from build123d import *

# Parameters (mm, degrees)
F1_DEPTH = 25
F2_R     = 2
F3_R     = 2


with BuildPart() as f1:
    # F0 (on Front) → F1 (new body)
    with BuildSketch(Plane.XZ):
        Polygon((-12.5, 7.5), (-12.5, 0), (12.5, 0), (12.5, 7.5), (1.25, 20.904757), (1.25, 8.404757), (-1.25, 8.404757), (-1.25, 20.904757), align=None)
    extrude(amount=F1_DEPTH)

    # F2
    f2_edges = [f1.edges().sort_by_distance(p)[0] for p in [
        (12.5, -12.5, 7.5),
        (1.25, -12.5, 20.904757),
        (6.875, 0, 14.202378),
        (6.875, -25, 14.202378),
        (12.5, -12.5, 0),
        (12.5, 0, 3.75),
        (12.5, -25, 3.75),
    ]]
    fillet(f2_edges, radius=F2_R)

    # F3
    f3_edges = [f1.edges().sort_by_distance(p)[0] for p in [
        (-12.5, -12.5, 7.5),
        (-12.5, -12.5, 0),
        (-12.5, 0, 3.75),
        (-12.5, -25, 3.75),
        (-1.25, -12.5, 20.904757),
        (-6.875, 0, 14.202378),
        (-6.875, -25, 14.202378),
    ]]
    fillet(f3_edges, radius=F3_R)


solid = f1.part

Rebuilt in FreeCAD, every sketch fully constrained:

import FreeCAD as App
import Part
import Sketcher
Q = App.Units.Quantity


def edges_at(feature, points):
    """Names of the edges that pass closest to the given points."""
    edges = feature.Shape.Edges
    near = lambda p: min(range(len(edges)), key=lambda i: edges[i].distToShape(Part.Vertex(*p))[0])
    return sorted({f"Edge{near(p) + 1}" for p in points})

doc = App.newDocument("Part")
params = doc.addObject("Spreadsheet::Sheet", "Params")
for row, (alias, value) in enumerate([
    ("sketch1_width", "25 mm"),
    ("sketch1_width2", "2.5 mm"),
    ("sketch1_height", "7.5 mm"),
    ("sketch1_height2", "12.5 mm"),
    ("sketch1_length", "17.5 mm"),
    ("pad1_length", "25 mm"),
    ("fillet_radius", "2 mm"),
    ("fillet2_radius", "2 mm"),
], start=1):
    params.set(f"A{row}", alias)
    params.set(f"B{row}", "=" + value)
    params.setAlias(f"B{row}", alias)

body = doc.addObject("PartDesign::Body", "Body")

sketch1 = doc.addObject("Sketcher::SketchObject", "Sketch")
body.addObject(sketch1)
sketch1.AttachmentSupport = (doc.XZ_Plane, [""])
sketch1.MapMode = "FlatFace"
sketch1.addGeometry([
    Part.LineSegment(App.Vector(-12.5, 7.5, 0), App.Vector(-12.5, 0, 0)),
    Part.LineSegment(App.Vector(-12.5, 0, 0), App.Vector(12.5, 0, 0)),
    Part.LineSegment(App.Vector(12.5, 0, 0), App.Vector(12.5, 7.5, 0)),
    Part.LineSegment(App.Vector(12.5, 7.5, 0), App.Vector(1.2, 20.9, 0)),
    Part.LineSegment(App.Vector(1.2, 20.9, 0), App.Vector(1.2, 8.4, 0)),
    Part.LineSegment(App.Vector(1.2, 8.4, 0), App.Vector(-1.2, 8.4, 0)),
    Part.LineSegment(App.Vector(-1.2, 8.4, 0), App.Vector(-1.2, 20.9, 0)),
    Part.LineSegment(App.Vector(-1.2, 20.9, 0), App.Vector(-12.5, 7.5, 0)),
], False)
sketch1.addConstraint([
    Sketcher.Constraint("Coincident", 0, 2, 1, 1),
    Sketcher.Constraint("Coincident", 1, 2, 2, 1),
    Sketcher.Constraint("Coincident", 2, 2, 3, 1),
    Sketcher.Constraint("Coincident", 3, 2, 4, 1),
    Sketcher.Constraint("Coincident", 4, 2, 5, 1),
    Sketcher.Constraint("Coincident", 5, 2, 6, 1),
    Sketcher.Constraint("Coincident", 6, 2, 7, 1),
    Sketcher.Constraint("Coincident", 7, 2, 0, 1),
    Sketcher.Constraint("Vertical", 0),
    Sketcher.Constraint("Horizontal", 1),
    Sketcher.Constraint("Vertical", 2),
    Sketcher.Constraint("Vertical", 4),
    Sketcher.Constraint("Horizontal", 5),
    Sketcher.Constraint("Vertical", 6),
    Sketcher.Constraint("Symmetric", 0, 2, 1, 2, -1, 1),
    Sketcher.Constraint("Symmetric", 3, 2, 6, 2, -2),
    Sketcher.Constraint("Horizontal", 2, 2, 7, 2),
    Sketcher.Constraint("DistanceX", 1, 1, 1, 2, Q("25 mm")),
    Sketcher.Constraint("DistanceX", 5, 2, 5, 1, Q("2.5 mm")),
    Sketcher.Constraint("DistanceY", 0, 2, 0, 1, Q("7.5 mm")),
    Sketcher.Constraint("DistanceY", 4, 2, 4, 1, Q("12.5 mm")),
    Sketcher.Constraint("Distance", 3, Q("17.5 mm")),
])
sketch1.setExpression("Constraints[17]", "Params.sketch1_width")
sketch1.setExpression("Constraints[18]", "Params.sketch1_width2")
sketch1.setExpression("Constraints[19]", "Params.sketch1_height")
sketch1.setExpression("Constraints[20]", "Params.sketch1_height2")
sketch1.setExpression("Constraints[21]", "Params.sketch1_length")
pad1 = doc.addObject("PartDesign::Pad", "Pad")
body.addObject(pad1)
pad1.Profile = sketch1
pad1.setExpression("Length", "Params.pad1_length")
doc.recompute()

fillet = doc.addObject("PartDesign::Fillet", "Fillet")
body.addObject(fillet)
fillet.Base = (pad1, edges_at(pad1, [
    (12.5, -12.5, 7.5),
    (1.25, -12.5, 20.905),
    (6.875, 0, 14.202),
    (6.875, -25, 14.202),
    (12.5, -12.5, 0),
    (12.5, 0, 3.75),
    (12.5, -25, 3.75),
]))
fillet.setExpression("Radius", "Params.fillet_radius")
doc.recompute()

fillet2 = doc.addObject("PartDesign::Fillet", "Fillet001")
body.addObject(fillet2)
fillet2.Base = (fillet, edges_at(fillet, [
    (-12.5, -12.5, 7.5),
    (-12.5, -12.5, 0),
    (-12.5, 0, 3.75),
    (-12.5, -25, 3.75),
    (-1.25, -12.5, 20.905),
    (-6.875, 0, 14.202),
    (-6.875, -25, 14.202),
]))
fillet2.setExpression("Radius", "Params.fillet2_radius")

doc.recompute()
